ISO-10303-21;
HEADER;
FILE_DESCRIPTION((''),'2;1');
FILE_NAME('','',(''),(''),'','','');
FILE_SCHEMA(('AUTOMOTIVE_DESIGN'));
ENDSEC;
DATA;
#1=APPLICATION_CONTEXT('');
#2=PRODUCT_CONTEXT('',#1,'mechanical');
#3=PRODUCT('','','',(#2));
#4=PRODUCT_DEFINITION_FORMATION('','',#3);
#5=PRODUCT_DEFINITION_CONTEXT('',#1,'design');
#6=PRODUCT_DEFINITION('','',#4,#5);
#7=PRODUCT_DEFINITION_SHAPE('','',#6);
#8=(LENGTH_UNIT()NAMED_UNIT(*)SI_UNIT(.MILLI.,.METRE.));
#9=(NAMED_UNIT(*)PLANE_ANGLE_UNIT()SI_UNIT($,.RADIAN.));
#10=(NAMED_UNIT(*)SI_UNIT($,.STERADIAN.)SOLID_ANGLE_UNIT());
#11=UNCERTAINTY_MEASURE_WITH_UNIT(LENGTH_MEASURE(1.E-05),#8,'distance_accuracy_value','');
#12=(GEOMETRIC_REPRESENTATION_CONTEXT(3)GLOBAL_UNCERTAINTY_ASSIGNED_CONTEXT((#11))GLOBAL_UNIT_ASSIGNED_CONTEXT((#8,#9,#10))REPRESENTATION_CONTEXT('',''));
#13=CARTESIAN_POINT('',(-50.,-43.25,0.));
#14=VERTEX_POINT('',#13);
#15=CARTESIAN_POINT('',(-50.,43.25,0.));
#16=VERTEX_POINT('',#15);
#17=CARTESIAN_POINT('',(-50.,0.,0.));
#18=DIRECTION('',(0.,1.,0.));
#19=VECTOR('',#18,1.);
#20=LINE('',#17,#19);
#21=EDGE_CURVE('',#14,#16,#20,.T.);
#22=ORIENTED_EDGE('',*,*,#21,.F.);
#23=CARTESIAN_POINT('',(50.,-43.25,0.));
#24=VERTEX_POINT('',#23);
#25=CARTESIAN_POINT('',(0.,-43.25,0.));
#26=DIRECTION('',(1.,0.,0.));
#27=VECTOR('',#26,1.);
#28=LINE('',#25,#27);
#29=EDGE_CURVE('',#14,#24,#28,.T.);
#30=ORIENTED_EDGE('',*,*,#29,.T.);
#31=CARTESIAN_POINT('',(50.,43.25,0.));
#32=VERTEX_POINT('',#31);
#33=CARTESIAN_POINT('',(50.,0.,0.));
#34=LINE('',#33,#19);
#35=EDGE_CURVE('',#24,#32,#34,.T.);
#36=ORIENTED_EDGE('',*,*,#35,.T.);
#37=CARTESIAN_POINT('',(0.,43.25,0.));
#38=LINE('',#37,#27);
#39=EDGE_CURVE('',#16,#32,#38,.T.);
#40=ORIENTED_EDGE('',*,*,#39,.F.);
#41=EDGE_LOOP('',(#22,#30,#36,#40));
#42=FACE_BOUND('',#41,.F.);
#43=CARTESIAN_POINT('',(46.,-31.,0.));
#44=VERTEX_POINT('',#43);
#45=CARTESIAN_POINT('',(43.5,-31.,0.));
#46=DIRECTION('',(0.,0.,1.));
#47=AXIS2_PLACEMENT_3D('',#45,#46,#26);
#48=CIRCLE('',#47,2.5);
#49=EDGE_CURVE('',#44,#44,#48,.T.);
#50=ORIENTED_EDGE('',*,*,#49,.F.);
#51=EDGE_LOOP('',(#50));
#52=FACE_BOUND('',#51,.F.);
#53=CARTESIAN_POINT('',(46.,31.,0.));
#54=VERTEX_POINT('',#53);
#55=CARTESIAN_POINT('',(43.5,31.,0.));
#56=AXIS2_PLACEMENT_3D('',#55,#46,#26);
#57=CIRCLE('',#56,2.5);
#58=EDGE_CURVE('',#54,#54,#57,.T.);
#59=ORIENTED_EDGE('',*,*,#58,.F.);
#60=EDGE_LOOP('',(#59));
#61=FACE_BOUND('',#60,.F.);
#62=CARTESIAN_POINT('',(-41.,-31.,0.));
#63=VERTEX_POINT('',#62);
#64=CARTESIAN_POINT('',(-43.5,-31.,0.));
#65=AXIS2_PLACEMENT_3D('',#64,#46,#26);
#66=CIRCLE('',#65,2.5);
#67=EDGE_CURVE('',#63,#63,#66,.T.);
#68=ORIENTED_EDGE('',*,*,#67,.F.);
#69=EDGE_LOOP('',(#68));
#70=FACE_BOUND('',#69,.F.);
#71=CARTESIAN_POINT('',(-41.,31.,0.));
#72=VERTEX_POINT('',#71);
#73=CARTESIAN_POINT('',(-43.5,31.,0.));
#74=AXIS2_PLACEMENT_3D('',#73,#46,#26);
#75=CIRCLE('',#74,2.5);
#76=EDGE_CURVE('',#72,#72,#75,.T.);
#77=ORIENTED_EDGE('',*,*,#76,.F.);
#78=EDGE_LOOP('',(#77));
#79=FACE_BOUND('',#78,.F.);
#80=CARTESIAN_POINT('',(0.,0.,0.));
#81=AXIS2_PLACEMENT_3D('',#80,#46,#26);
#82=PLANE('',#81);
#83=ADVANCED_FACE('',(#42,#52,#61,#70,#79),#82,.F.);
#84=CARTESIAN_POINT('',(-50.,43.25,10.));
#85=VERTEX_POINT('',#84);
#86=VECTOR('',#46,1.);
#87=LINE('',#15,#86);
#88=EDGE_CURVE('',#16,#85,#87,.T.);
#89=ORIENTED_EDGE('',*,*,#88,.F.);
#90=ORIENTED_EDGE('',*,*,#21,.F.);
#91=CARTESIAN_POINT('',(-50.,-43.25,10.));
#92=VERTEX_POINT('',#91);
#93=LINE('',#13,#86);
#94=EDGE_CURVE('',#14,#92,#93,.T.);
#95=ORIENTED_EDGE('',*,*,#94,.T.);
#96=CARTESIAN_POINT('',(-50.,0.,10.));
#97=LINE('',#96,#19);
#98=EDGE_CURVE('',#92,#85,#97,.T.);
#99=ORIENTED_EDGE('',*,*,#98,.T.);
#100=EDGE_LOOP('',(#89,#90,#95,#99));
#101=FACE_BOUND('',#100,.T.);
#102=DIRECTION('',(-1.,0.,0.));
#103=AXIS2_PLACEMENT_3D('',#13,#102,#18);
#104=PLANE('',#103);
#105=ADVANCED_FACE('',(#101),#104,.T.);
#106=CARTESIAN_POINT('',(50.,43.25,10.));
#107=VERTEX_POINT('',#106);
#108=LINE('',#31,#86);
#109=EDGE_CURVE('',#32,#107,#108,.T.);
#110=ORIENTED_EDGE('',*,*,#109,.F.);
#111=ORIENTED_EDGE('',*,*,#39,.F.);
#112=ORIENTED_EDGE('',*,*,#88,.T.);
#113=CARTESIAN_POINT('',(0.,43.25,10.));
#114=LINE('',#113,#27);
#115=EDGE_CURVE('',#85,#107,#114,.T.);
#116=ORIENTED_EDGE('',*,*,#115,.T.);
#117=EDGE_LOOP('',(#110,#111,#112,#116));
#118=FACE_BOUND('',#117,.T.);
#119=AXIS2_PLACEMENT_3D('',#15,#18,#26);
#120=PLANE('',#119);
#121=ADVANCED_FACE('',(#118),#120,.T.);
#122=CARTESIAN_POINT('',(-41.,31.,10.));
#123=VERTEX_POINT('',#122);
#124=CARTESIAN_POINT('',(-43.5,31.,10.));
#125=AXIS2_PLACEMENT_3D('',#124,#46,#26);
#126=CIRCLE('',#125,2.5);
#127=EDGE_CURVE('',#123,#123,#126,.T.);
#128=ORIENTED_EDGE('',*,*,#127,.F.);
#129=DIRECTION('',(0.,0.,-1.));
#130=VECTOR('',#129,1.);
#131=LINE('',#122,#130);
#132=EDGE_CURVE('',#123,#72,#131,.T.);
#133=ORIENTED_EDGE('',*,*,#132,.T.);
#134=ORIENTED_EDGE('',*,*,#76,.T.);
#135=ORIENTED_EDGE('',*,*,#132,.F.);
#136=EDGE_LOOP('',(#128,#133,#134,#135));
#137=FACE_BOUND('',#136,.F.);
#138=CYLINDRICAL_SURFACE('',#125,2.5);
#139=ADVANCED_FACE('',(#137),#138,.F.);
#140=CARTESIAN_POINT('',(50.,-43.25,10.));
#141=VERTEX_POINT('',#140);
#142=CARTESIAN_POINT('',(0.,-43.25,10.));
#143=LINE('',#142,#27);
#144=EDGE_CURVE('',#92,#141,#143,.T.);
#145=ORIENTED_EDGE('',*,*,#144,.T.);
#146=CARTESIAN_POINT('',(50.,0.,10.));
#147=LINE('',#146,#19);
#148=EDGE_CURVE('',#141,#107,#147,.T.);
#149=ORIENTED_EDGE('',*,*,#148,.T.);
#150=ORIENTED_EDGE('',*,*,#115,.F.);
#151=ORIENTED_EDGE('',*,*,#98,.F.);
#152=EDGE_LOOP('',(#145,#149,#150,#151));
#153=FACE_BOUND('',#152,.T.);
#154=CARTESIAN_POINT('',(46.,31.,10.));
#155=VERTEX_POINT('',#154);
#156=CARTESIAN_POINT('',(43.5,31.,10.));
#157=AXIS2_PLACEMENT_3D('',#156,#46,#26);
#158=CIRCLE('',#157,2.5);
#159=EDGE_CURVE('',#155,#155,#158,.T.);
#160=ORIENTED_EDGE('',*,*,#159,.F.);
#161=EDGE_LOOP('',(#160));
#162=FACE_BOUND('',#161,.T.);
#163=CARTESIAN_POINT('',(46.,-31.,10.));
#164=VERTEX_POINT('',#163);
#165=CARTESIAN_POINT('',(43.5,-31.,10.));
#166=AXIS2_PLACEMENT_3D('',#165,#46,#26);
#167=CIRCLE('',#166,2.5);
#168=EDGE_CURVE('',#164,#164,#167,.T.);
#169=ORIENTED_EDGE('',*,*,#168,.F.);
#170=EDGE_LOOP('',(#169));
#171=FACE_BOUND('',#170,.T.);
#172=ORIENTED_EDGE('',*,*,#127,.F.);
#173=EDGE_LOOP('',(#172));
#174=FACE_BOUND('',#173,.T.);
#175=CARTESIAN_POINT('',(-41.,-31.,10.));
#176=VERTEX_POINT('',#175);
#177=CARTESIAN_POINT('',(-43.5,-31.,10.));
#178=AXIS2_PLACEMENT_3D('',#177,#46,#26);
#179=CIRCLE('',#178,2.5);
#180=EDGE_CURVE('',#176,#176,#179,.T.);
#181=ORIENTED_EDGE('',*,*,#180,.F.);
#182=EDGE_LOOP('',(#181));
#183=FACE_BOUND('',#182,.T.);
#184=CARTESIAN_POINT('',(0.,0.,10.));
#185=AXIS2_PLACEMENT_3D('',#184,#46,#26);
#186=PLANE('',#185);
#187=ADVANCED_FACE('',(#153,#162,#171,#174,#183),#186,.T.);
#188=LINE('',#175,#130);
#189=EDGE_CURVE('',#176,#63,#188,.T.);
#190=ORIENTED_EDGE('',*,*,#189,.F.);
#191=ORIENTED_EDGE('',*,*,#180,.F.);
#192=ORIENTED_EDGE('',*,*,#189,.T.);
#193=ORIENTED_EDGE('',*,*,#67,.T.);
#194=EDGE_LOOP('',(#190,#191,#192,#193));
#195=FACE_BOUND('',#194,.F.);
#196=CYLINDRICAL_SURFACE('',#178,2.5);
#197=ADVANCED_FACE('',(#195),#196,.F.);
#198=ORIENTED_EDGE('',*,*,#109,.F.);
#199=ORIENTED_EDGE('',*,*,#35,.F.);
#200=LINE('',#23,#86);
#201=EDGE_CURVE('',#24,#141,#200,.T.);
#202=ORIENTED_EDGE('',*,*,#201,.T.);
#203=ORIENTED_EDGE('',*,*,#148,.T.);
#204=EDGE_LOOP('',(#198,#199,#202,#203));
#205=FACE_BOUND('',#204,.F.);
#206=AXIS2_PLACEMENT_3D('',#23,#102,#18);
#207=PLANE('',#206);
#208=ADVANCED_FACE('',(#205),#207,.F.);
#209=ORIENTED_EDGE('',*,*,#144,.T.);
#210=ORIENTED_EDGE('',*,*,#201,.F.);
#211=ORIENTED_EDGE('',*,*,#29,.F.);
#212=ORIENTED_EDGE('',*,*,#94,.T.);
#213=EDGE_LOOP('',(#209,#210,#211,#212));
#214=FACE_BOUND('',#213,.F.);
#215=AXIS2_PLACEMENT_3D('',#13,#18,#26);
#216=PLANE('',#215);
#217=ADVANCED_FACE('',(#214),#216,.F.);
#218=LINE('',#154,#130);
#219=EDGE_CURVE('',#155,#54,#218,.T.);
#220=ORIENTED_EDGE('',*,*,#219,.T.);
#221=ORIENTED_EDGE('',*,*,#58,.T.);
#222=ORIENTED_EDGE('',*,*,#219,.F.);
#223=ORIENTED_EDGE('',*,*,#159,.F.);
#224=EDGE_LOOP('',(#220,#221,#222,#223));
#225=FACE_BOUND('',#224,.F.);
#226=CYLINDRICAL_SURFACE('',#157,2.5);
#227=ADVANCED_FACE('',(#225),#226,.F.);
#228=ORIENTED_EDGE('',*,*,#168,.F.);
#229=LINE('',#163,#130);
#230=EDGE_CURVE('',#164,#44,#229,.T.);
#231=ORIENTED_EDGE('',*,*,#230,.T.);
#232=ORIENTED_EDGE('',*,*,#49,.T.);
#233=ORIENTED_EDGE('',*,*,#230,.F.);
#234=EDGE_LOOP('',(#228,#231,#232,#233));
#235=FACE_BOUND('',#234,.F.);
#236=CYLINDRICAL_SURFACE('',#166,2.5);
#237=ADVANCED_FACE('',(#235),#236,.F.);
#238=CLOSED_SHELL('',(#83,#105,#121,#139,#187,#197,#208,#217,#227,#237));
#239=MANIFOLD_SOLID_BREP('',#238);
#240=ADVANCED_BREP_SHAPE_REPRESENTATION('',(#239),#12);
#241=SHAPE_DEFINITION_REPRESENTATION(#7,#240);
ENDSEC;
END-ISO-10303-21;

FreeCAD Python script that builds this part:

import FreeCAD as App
import Part
import Sketcher
from FreeCAD import Vector


def add_polygon(sketch, points):
    """Adds a closed chain of lines whose ends are joined by coincident constraints."""
    first, n = sketch.GeometryCount, len(points)
    for a, b in zip(points, points[1:] + points[:1]):
        sketch.addGeometry(Part.LineSegment(App.Vector(*a, 0), App.Vector(*b, 0)), False)
    for i in range(n):
        sketch.addConstraint(Sketcher.Constraint("Coincident", first + i, 2, first + (i + 1) % n, 1))

doc = App.newDocument("Part")
body = doc.addObject("PartDesign::Body", "Body")

# Sketch on XY plane
sketch1 = body.newObject("Sketcher::SketchObject", "Sketch")
sketch1.AttachmentSupport = (doc.getObject("XY_Plane"), [""])
sketch1.MapMode = "FlatFace"
add_polygon(sketch1, [(-50, 43), (-50, -43), (50, -43), (50, 43)])  # lines 0-3
sketch1.addConstraint([
    Sketcher.Constraint("Vertical", 0),
    Sketcher.Constraint("Horizontal", 1),
    Sketcher.Constraint("Vertical", 2),
    Sketcher.Constraint("Horizontal", 3),
    Sketcher.Constraint("Symmetric", 0, 2, 2, 2, -1, 1),
    Sketcher.Constraint("DistanceX", 1, 1, 1, 2, 100.0),
    Sketcher.Constraint("DistanceY", 0, 2, 0, 1, 86.5),
])
pad1 = body.newObject("PartDesign::Pad", "Pad")
pad1.Profile = sketch1
pad1.Length = 10

# Sketch on XY plane
sketch2 = body.newObject("Sketcher::SketchObject", "Sketch001")
sketch2.AttachmentSupport = (doc.getObject("XY_Plane"), [""])
sketch2.MapMode = "FlatFace"
sketch2.AttachmentOffset = App.Placement(Vector(0, 0, 10), App.Rotation())
sketch2.addGeometry([
    Part.Circle(Vector(-43.5, 31, 0), Vector(0, 0, 1), 2.5),
    Part.Circle(Vector(43.5, 31, 0), Vector(0, 0, 1), 2.5),
    Part.Circle(Vector(43.5, -31, 0), Vector(0, 0, 1), 2.5),
    Part.Circle(Vector(-43.5, -31, 0), Vector(0, 0, 1), 2.5),
], False)
sketch2.addConstraint([
    Sketcher.Constraint("Equal", 0, 1),
    Sketcher.Constraint("Equal", 1, 2),
    Sketcher.Constraint("Equal", 2, 3),
    Sketcher.Constraint("Symmetric", 0, 3, 2, 3, -1, 1),
    Sketcher.Constraint("Symmetric", 1, 3, 3, 3, -1, 1),
    Sketcher.Constraint("Symmetric", 0, 3, 1, 3, -2),
    Sketcher.Constraint("Diameter", 0, 5.0),
    Sketcher.Constraint("DistanceY", -1, 1, 0, 3, 31.0),
    Sketcher.Constraint("DistanceX", 0, 3, 1, 3, 87.0),
])
pocket1 = body.newObject("PartDesign::Pocket", "Pocket")
pocket1.Profile = sketch2
pocket1.Length = 10

doc.recompute()
